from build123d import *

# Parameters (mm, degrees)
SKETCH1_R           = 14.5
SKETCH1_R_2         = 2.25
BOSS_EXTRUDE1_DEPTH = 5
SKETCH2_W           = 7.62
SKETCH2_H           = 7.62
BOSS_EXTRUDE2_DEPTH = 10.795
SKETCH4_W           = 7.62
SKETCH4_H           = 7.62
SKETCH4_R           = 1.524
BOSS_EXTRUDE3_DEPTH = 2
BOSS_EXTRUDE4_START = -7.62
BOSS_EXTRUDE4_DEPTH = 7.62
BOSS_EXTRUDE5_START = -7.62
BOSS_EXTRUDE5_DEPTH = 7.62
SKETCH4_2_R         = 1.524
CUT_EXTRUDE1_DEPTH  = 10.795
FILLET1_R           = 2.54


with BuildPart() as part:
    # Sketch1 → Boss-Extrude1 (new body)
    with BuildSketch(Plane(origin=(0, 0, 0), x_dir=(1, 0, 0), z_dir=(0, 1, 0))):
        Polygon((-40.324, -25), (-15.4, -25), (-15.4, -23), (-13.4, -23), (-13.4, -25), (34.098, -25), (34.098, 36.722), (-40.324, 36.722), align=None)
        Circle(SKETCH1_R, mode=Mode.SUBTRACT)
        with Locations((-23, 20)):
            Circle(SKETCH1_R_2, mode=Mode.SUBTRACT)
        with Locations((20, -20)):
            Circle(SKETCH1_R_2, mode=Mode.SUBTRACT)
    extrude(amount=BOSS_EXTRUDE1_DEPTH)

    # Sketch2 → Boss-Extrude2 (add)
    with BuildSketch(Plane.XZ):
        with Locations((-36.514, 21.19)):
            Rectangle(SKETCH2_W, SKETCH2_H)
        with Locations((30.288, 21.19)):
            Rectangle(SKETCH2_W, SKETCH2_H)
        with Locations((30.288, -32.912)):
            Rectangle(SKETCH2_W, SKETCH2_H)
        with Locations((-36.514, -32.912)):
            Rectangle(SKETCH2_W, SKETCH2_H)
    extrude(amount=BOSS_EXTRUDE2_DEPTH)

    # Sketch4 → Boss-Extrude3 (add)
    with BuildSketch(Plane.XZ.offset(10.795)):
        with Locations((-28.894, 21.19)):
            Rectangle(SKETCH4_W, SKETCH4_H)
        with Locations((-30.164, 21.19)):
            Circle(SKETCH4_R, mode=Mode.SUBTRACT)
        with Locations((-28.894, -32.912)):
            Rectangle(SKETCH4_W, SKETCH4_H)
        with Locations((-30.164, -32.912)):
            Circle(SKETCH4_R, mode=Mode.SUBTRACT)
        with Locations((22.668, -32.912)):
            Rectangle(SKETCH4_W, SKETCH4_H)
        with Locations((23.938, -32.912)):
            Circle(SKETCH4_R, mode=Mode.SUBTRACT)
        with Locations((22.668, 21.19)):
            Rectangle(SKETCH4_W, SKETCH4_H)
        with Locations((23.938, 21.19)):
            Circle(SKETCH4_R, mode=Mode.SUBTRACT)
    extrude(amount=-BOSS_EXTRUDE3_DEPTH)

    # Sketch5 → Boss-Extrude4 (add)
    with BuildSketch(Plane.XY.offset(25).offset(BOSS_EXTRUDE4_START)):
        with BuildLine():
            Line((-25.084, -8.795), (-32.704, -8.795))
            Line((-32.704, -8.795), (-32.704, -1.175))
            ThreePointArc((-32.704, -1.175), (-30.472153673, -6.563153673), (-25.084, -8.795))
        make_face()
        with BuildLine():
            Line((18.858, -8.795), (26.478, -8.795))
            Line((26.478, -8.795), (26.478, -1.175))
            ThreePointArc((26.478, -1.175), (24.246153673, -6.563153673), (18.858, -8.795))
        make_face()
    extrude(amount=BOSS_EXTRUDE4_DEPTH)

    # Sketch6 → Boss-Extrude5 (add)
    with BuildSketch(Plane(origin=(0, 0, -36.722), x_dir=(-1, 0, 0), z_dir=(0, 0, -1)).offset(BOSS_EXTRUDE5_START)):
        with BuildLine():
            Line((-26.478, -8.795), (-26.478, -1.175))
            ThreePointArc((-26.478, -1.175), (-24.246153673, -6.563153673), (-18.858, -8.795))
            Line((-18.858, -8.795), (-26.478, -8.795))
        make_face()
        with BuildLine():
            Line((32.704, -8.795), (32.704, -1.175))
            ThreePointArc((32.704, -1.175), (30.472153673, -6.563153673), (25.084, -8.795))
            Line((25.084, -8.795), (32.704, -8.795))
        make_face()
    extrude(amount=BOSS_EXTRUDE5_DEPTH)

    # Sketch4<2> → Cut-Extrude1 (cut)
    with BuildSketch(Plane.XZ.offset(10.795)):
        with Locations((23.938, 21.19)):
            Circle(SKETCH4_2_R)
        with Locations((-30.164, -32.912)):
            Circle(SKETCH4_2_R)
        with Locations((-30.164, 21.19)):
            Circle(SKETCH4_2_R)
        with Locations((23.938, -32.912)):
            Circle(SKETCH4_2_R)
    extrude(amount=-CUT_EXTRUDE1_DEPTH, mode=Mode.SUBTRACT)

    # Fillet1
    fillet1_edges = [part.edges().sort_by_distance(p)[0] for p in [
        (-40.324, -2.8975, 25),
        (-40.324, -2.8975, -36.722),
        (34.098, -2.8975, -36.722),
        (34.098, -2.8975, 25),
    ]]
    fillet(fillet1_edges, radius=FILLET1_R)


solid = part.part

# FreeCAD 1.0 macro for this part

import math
import FreeCAD as App
import Part
import Sketcher
Q = App.Units.Quantity


def edges_at(feature, points):
    """Names of the edges that pass closest to the given points."""
    edges = feature.Shape.Edges
    near = lambda p: min(range(len(edges)), key=lambda i: edges[i].distToShape(Part.Vertex(*p))[0])
    return sorted({f"Edge{near(p) + 1}" for p in points})


def add_polygon(sketch, points):
    """Adds a closed chain of lines whose ends are joined by coincident constraints."""
    first, n = sketch.GeometryCount, len(points)
    for a, b in zip(points, points[1:] + points[:1]):
        sketch.addGeometry(Part.LineSegment(App.Vector(*a, 0), App.Vector(*b, 0)), False)
    for i in range(n):
        sketch.addConstraint(Sketcher.Constraint("Coincident", first + i, 2, first + (i + 1) % n, 1))

doc = App.newDocument("Part")
body = doc.addObject("PartDesign::Body", "Body")

sketch1 = body.newObject("Sketcher::SketchObject", "Sketch")
sketch1.AttachmentSupport = (doc.getObject("XZ_Plane"), [""])
sketch1.MapMode = "FlatFace"
add_polygon(sketch1, [(-40.324, 25), (-15.4, 25), (-15.4, 23), (-13.4, 23), (-13.4, 25), (34.098, 25), (34.098, -36.722), (-40.324, -36.722)])
sketch1.addGeometry(Part.Circle(App.Vector(20, 20, 0), App.Vector(0, 0, 1), 2.25), False)
sketch1.addGeometry(Part.Circle(App.Vector(-23, -20, 0), App.Vector(0, 0, 1), 2.25), False)
sketch1.addGeometry(Part.Circle(App.Vector(0, 0, 0), App.Vector(0, 0, 1), 14.5), False)
sketch1.addConstraint([
    Sketcher.Constraint("Horizontal", 0),
    Sketcher.Constraint("Vertical", 1),
    Sketcher.Constraint("Horizontal", 2),
    Sketcher.Constraint("Vertical", 3),
    Sketcher.Constraint("Horizontal", 4),
    Sketcher.Constraint("Vertical", 5),
    Sketcher.Constraint("Horizontal", 6),
    Sketcher.Constraint("Vertical", 7),
    Sketcher.Constraint("Coincident", 10, 3, -1, 1),
    Sketcher.Constraint("Equal", 8, 9),
    Sketcher.Constraint("Horizontal", 0, 2, 3, 2),
    Sketcher.Constraint("Equal", 2, 1),
    Sketcher.Constraint("DistanceX", 4, 1, 4, 2, Q("1.87 in")),
    Sketcher.Constraint("DistanceX", 6, 2, 6, 1, Q("2.93 in")),
    Sketcher.Constraint("DistanceY", 5, 2, 5, 1, Q("2.43 in")),
    Sketcher.Constraint("Diameter", 8, 4.5),
    Sketcher.Constraint("Diameter", 10, 29.0),
    Sketcher.Constraint("DistanceX", 0, 1, 0, 2, 24.924),
    Sketcher.Constraint("DistanceX", -1, 1, 8, 3, 20.0),
    Sketcher.Constraint("DistanceY", -1, 1, 8, 3, 20.0),
    Sketcher.Constraint("DistanceX", 9, 3, -1, 1, 23.0),
    Sketcher.Constraint("DistanceY", 9, 3, -1, 1, 20.0),
    Sketcher.Constraint("DistanceX", 0, 2, -1, 1, 15.4),
    Sketcher.Constraint("DistanceY", -1, 1, 0, 2, 25.0),
])
pad1 = body.newObject("PartDesign::Pad", "Pad")
pad1.Profile = sketch1
pad1.Length = 5
pad1.Reversed = True

sketch2 = body.newObject("Sketcher::SketchObject", "Sketch001")
sketch2.AttachmentSupport = (doc.getObject("XZ_Plane"), [""])
sketch2.MapMode = "FlatFace"
add_polygon(sketch2, [(-40.324, 25), (-40.324, 17.38), (-32.704, 17.38), (-32.704, 25)])
add_polygon(sketch2, [(26.478, 25), (26.478, 17.38), (34.098, 17.38), (34.098, 25)])
add_polygon(sketch2, [(26.478, -29.102), (26.478, -36.722), (34.098, -36.722), (34.098, -29.102)])
add_polygon(sketch2, [(-40.324, -29.102), (-40.324, -36.722), (-32.704, -36.722), (-32.704, -29.102)])
sketch2.addConstraint([
    Sketcher.Constraint("Vertical", 0),
    Sketcher.Constraint("Horizontal", 1),
    Sketcher.Constraint("Vertical", 2),
    Sketcher.Constraint("Horizontal", 3),
    Sketcher.Constraint("Vertical", 4),
    Sketcher.Constraint("Horizontal", 5),
    Sketcher.Constraint("Vertical", 6),
    Sketcher.Constraint("Horizontal", 7),
    Sketcher.Constraint("Vertical", 8),
    Sketcher.Constraint("Horizontal", 9),
    Sketcher.Constraint("Vertical", 10),
    Sketcher.Constraint("Horizontal", 11),
    Sketcher.Constraint("Vertical", 12),
    Sketcher.Constraint("Horizontal", 13),
    Sketcher.Constraint("Vertical", 14),
    Sketcher.Constraint("Horizontal", 15),
    Sketcher.Constraint("Horizontal", 1, 2, 4, 2),
    Sketcher.Constraint("Horizontal", 3, 2, 6, 2),
    Sketcher.Constraint("Horizontal", 9, 2, 12, 2),
    Sketcher.Constraint("Horizontal", 11, 2, 14, 2),
    Sketcher.Constraint("Vertical", 7, 2, 8, 2),
    Sketcher.Constraint("Vertical", 6, 2, 9, 2),
    Sketcher.Constraint("Vertical", 3, 2, 12, 2),
    Sketcher.Constraint("Vertical", 2, 2, 13, 2),
    Sketcher.Constraint("Equal", 3, 5),
    Sketcher.Constraint("Equal", 15, 0),
    Sketcher.Constraint("Equal", 6, 8),
    Sketcher.Constraint("DistanceX", 1, 1, 1, 2, Q("0.3 in")),
    Sketcher.Constraint("DistanceX", 1, 2, 4, 2, Q("2.33 in")),
    Sketcher.Constraint("DistanceY", 8, 2, 4, 2, Q("2.13 in")),
    Sketcher.Constraint("DistanceX", 0, 2, -1, 1, 40.324),
    Sketcher.Constraint("DistanceY", -1, 1, 0, 2, 17.38),
])
pad2 = body.newObject("PartDesign::Pad", "Pad001")
pad2.Profile = sketch2
pad2.Length = Q("0.425 in")

sketch3 = body.newObject("Sketcher::SketchObject", "Sketch002")
sketch3.AttachmentSupport = (doc.getObject("XZ_Plane"), [""])
sketch3.MapMode = "FlatFace"
sketch3.AttachmentOffset = App.Placement(App.Vector(0, 0, 0.425 * 25.4), App.Rotation())
add_polygon(sketch3, [(-32.704, 25), (-32.704, 17.38), (-25.084, 17.38), (-25.084, 25)])
sketch3.addGeometry(Part.Circle(App.Vector(-30.164, 21.19, 0), App.Vector(0, 0, 1), 1.524), False)
add_polygon(sketch3, [(-32.704, -29.102), (-32.704, -36.722), (-25.084, -36.722), (-25.084, -29.102)])
sketch3.addGeometry(Part.Circle(App.Vector(-30.164, -32.912, 0), App.Vector(0, 0, 1), 1.524), False)
add_polygon(sketch3, [(18.858, -29.102), (18.858, -36.722), (26.478, -36.722), (26.478, -29.102)])
sketch3.addGeometry(Part.Circle(App.Vector(23.938, -32.912, 0), App.Vector(0, 0, 1), 1.524), False)
add_polygon(sketch3, [(18.858, 25), (18.858, 17.38), (26.478, 17.38), (26.478, 25)])
sketch3.addGeometry(Part.Circle(App.Vector(23.938, 21.19, 0), App.Vector(0, 0, 1), 1.524), False)
sketch3.addConstraint([
    Sketcher.Constraint("Vertical", 0),
    Sketcher.Constraint("Horizontal", 1),
    Sketcher.Constraint("Vertical", 2),
    Sketcher.Constraint("Horizontal", 3),
    Sketcher.Constraint("Vertical", 5),
    Sketcher.Constraint("Horizontal", 6),
    Sketcher.Constraint("Vertical", 7),
    Sketcher.Constraint("Horizontal", 8),
    Sketcher.Constraint("Vertical", 10),
    Sketcher.Constraint("Horizontal", 11),
    Sketcher.Constraint("Vertical", 12),
    Sketcher.Constraint("Horizontal", 13),
    Sketcher.Constraint("Vertical", 15),
    Sketcher.Constraint("Horizontal", 16),
    Sketcher.Constraint("Vertical", 17),
    Sketcher.Constraint("Horizontal", 18),
    Sketcher.Constraint("Equal", 4, 9),
    Sketcher.Constraint("Equal", 9, 14),
    Sketcher.Constraint("Equal", 14, 19),
    Sketcher.Constraint("Horizontal", 9, 3, 14, 3),
    Sketcher.Constraint("Horizontal", 4, 3, 19, 3),
    Sketcher.Constraint("Horizontal", 6, 2, 10, 2),
    Sketcher.Constraint("Horizontal", 8, 2, 12, 2),
    Sketcher.Constraint("Horizontal", 1, 2, 15, 2),
    Sketcher.Constraint("Horizontal", 3, 2, 17, 2),
    Sketcher.Constraint("Vertical", 4, 3, 9, 3),
    Sketcher.Constraint("Vertical", 14, 3, 19, 3),
    Sketcher.Constraint("Vertical", 3, 2, 5, 2),
    Sketcher.Constraint("Vertical", 2, 2, 6, 2),
    Sketcher.Constraint("Vertical", 13, 2, 15, 2),
    Sketcher.Constraint("Vertical", 12, 2, 16, 2),
    Sketcher.Constraint("Equal", 8, 11),
    Sketcher.Constraint("Equal", 18, 0),
    Sketcher.Constraint("Equal", 2, 5),
    Sketcher.Constraint("Diameter", 4, Q("0.12 in")),
    Sketcher.Constraint("DistanceX", 1, 1, 1, 2, Q("0.3 in")),
    Sketcher.Constraint("DistanceX", 0, 2, 4, 3, Q("0.1 in")),
    Sketcher.Constraint("DistanceX", 10, 2, 14, 3, Q("0.2 in")),
    Sketcher.Constraint("DistanceY", 9, 3, 4, 3, Q("2.13 in")),
    Sketcher.Constraint("DistanceX", 9, 3, 14, 3, Q("2.13 in")),
    Sketcher.Constraint("DistanceY", 0, 2, 4, 3, Q("0.15 in")),
    Sketcher.Constraint("DistanceY", 5, 2, 9, 3, Q("0.15 in")),
    Sketcher.Constraint("DistanceX", 4, 3, -1, 1, 30.164),
    Sketcher.Constraint("DistanceY", -1, 1, 4, 3, 21.19),
])
pad3 = body.newObject("PartDesign::Pad", "Pad002")
pad3.Profile = sketch3
pad3.Length = 2
pad3.Reversed = True

sketch4 = body.newObject("Sketcher::SketchObject", "Sketch003")
sketch4.AttachmentSupport = (doc.getObject("XY_Plane"), [""])
sketch4.MapMode = "FlatFace"
sketch4.AttachmentOffset = App.Placement(App.Vector(0, 0, 17.38), App.Rotation())
sketch4.addGeometry([
    Part.LineSegment(App.Vector(-32.704, -8.795, 0), App.Vector(-25.084, -8.795, 0)),
    Part.ArcOfCircle(Part.Circle(App.Vector(-25.084, -1.175, 0), App.Vector(0, 0, 1), 7.62), math.radians(180), math.radians(270)),
    Part.LineSegment(App.Vector(-32.704, -1.175, 0), App.Vector(-32.704, -8.795, 0)),
    Part.LineSegment(App.Vector(18.858, -8.795, 0), App.Vector(26.478, -8.795, 0)),
    Part.LineSegment(App.Vector(26.478, -8.795, 0), App.Vector(26.478, -1.175, 0)),
    Part.ArcOfCircle(Part.Circle(App.Vector(18.858, -1.175, 0), App.Vector(0, 0, 1), 7.62), math.radians(-90), math.radians(0)),
], False)
sketch4.addConstraint([
    Sketcher.Constraint("Tangent", 0, 2, 1, 2),
    Sketcher.Constraint("Tangent", 1, 1, 2, 1),
    Sketcher.Constraint("Coincident", 2, 2, 0, 1),
    Sketcher.Constraint("Coincident", 3, 2, 4, 1),
    Sketcher.Constraint("Tangent", 4, 2, 5, 2),
    Sketcher.Constraint("Tangent", 5, 1, 3, 1),
    Sketcher.Constraint("Horizontal", 0),
    Sketcher.Constraint("Vertical", 2),
    Sketcher.Constraint("Horizontal", 3),
    Sketcher.Constraint("Vertical", 4),
    Sketcher.Constraint("Equal", 1, 5),
    Sketcher.Constraint("Horizontal", 1, 3, 5, 3),
    Sketcher.Constraint("Radius", 1, Q("0.3 in")),
    Sketcher.Constraint("DistanceX", 1, 3, 5, 3, Q("1.73 in")),
    Sketcher.Constraint("DistanceX", 1, 3, -1, 1, 25.084),
    Sketcher.Constraint("DistanceY", 1, 3, -1, 1, 1.175),
])
pad4 = body.newObject("PartDesign::Pad", "Pad003")
pad4.Profile = sketch4
pad4.Length = Q("0.3 in")

sketch5 = body.newObject("Sketcher::SketchObject", "Sketch004")
sketch5.AttachmentSupport = (doc.getObject("XY_Plane"), [""])
sketch5.MapMode = "FlatFace"
sketch5.AttachmentOffset = App.Placement(App.Vector(0, 0, -29.102), App.Rotation())
sketch5.addGeometry([
    Part.LineSegment(App.Vector(26.478, -1.175, 0), App.Vector(26.478, -8.795, 0)),
    Part.LineSegment(App.Vector(26.478, -8.795, 0), App.Vector(18.858, -8.795, 0)),
    Part.ArcOfCircle(Part.Circle(App.Vector(18.858, -1.175, 0), App.Vector(0, 0, 1), 7.62), math.radians(-90), math.radians(0)),
    Part.LineSegment(App.Vector(-32.704, -8.795, 0), App.Vector(-32.704, -1.175, 0)),
    Part.ArcOfCircle(Part.Circle(App.Vector(-25.084, -1.175, 0), App.Vector(0, 0, 1), 7.62), math.radians(180), math.radians(270)),
    Part.LineSegment(App.Vector(-25.084, -8.795, 0), App.Vector(-32.704, -8.795, 0)),
], False)
sketch5.addConstraint([
    Sketcher.Constraint("Coincident", 0, 2, 1, 1),
    Sketcher.Constraint("Tangent", 1, 2, 2, 1),
    Sketcher.Constraint("Tangent", 2, 2, 0, 1),
    Sketcher.Constraint("Tangent", 3, 2, 4, 1),
    Sketcher.Constraint("Tangent", 4, 2, 5, 1),
    Sketcher.Constraint("Coincident", 5, 2, 3, 1),
    Sketcher.Constraint("Vertical", 0),
    Sketcher.Constraint("Horizontal", 1),
    Sketcher.Constraint("Vertical", 3),
    Sketcher.Constraint("Horizontal", 5),
    Sketcher.Constraint("Equal", 2, 4),
    Sketcher.Constraint("Horizontal", 2, 3, 4, 3),
    Sketcher.Constraint("Radius", 2, Q("0.3 in")),
    Sketcher.Constraint("DistanceX", 4, 3, 2, 3, Q("1.73 in")),
    Sketcher.Constraint("DistanceX", -1, 1, 2, 3, 18.858),
    Sketcher.Constraint("DistanceY", 2, 3, -1, 1, 1.175),
])
pad5 = body.newObject("PartDesign::Pad", "Pad004")
pad5.Profile = sketch5
pad5.Length = Q("0.3 in")
pad5.Reversed = True

sketch6 = body.newObject("Sketcher::SketchObject", "Sketch005")
sketch6.AttachmentSupport = (doc.getObject("XZ_Plane"), [""])
sketch6.MapMode = "FlatFace"
sketch6.AttachmentOffset = App.Placement(App.Vector(0, 0, 0.425 * 25.4), App.Rotation())
sketch6.addGeometry([
    Part.Circle(App.Vector(23.938, 21.19, 0), App.Vector(0, 0, 1), 1.524),
    Part.Circle(App.Vector(-30.164, -32.912, 0), App.Vector(0, 0, 1), 1.524),
    Part.Circle(App.Vector(-30.164, 21.19, 0), App.Vector(0, 0, 1), 1.524),
    Part.Circle(App.Vector(23.938, -32.912, 0), App.Vector(0, 0, 1), 1.524),
], False)
sketch6.addConstraint([
    Sketcher.Constraint("Equal", 0, 1),
    Sketcher.Constraint("Equal", 1, 2),
    Sketcher.Constraint("Equal", 2, 3),
    Sketcher.Constraint("Horizontal", 0, 3, 2, 3),
    Sketcher.Constraint("Horizontal", 1, 3, 3, 3),
    Sketcher.Constraint("Vertical", 1, 3, 2, 3),
    Sketcher.Constraint("Vertical", 0, 3, 3, 3),
    Sketcher.Constraint("Diameter", 0, Q("0.12 in")),
    Sketcher.Constraint("DistanceX", 1, 3, 0, 3, Q("2.13 in")),
    Sketcher.Constraint("DistanceY", 1, 3, 0, 3, Q("2.13 in")),
    Sketcher.Constraint("DistanceX", -1, 1, 0, 3, 23.938),
    Sketcher.Constraint("DistanceY", -1, 1, 0, 3, 21.19),
])
pocket1 = body.newObject("PartDesign::Pocket", "Pocket")
pocket1.Profile = sketch6
pocket1.Length = Q("0.425 in")
doc.recompute()

fillet = body.newObject("PartDesign::Fillet", "Fillet")
fillet.Base = (pocket1, edges_at(pocket1, [
    (-40.324, -2.897, 25),
    (-40.324, -2.897, -36.722),
    (34.098, -2.897, -36.722),
    (34.098, -2.897, 25),
]))
fillet.Radius = Q("0.1 in")

doc.recompute()
